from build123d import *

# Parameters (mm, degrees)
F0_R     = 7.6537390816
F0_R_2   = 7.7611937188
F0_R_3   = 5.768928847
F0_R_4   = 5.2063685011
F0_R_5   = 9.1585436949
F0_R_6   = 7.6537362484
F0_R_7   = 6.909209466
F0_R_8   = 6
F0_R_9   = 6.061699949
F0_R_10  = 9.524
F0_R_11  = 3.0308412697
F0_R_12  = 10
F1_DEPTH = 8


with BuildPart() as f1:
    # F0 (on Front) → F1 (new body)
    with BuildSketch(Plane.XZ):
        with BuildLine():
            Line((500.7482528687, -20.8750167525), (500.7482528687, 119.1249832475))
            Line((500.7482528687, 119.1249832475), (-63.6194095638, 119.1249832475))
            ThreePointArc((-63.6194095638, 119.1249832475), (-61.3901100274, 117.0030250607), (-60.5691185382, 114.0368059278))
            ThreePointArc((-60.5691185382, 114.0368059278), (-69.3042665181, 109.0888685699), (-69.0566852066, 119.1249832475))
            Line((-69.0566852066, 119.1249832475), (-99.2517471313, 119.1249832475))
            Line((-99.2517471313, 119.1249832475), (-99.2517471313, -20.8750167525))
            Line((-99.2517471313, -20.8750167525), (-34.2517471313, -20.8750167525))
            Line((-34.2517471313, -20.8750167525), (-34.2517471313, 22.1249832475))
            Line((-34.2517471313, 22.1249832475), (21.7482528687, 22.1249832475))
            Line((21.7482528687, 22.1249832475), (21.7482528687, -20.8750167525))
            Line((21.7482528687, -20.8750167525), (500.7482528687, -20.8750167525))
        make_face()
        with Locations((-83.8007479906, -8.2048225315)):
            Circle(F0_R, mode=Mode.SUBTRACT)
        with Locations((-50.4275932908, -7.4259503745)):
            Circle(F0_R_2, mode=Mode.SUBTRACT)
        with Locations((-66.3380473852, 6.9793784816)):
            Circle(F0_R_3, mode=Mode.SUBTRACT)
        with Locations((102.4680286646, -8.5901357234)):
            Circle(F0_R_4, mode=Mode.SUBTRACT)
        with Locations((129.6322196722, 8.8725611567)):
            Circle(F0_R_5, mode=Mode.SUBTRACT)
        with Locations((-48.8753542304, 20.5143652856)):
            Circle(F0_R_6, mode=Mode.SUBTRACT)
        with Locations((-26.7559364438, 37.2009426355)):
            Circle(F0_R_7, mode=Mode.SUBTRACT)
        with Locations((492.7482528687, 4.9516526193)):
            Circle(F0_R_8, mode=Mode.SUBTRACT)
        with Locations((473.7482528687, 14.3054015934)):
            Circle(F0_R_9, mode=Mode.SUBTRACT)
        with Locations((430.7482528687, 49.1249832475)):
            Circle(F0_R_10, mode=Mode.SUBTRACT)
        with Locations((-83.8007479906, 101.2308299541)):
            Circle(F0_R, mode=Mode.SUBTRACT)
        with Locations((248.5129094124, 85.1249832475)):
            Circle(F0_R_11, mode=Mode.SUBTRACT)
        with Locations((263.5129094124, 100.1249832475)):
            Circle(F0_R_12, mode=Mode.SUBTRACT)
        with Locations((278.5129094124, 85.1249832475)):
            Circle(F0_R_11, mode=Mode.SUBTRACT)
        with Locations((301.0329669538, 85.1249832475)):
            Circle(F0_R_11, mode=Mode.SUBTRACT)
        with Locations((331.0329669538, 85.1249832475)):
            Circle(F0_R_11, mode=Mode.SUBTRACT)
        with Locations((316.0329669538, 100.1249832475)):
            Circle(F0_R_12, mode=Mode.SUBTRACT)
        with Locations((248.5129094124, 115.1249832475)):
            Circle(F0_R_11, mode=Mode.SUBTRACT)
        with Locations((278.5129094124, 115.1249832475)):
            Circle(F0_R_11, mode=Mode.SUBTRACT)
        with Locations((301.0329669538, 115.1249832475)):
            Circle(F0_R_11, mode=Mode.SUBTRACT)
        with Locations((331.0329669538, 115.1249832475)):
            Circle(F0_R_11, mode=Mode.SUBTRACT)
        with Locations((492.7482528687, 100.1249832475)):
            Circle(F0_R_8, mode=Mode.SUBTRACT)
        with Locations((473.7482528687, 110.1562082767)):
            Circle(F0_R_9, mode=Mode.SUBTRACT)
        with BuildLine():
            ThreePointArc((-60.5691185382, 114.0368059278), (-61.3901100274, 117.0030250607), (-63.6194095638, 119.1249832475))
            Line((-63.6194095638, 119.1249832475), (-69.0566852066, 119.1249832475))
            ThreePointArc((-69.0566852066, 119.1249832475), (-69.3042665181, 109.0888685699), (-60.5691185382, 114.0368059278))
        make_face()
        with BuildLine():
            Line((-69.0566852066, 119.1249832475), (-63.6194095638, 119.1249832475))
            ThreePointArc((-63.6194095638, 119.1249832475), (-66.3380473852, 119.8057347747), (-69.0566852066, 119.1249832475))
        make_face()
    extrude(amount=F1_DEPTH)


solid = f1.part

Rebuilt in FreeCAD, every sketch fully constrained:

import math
import FreeCAD as App
import Part
import Sketcher

doc = App.newDocument("Part")
body = doc.addObject("PartDesign::Body", "Body")

# Sketch on XZ plane
sketch1 = doc.addObject("Sketcher::SketchObject", "Sketch")
body.addObject(sketch1)
sketch1.AttachmentSupport = (doc.XZ_Plane, [""])
sketch1.MapMode = "FlatFace"
sketch1.addGeometry([
    Part.LineSegment(App.Vector(500.7, -20.9, 0), App.Vector(500.7, 119.1, 0)),  # 0
    Part.LineSegment(App.Vector(500.7, 119.1, 0), App.Vector(-63.6, 119.1, 0)),  # 1
    Part.ArcOfCircle(Part.Circle(App.Vector(-66.3, 114, 0), App.Vector(0, 0, 1), 5.8), math.radians(62), math.radians(118)),  # 2
    Part.LineSegment(App.Vector(-69.1, 119.1, 0), App.Vector(-99.3, 119.1, 0)),  # 3
    Part.LineSegment(App.Vector(-99.3, 119.1, 0), App.Vector(-99.3, -20.9, 0)),  # 4
    Part.LineSegment(App.Vector(-99.3, -20.9, 0), App.Vector(-34.3, -20.9, 0)),  # 5
    Part.LineSegment(App.Vector(-34.3, -20.9, 0), App.Vector(-34.3, 22.1, 0)),  # 6
    Part.LineSegment(App.Vector(-34.3, 22.1, 0), App.Vector(21.7, 22.1, 0)),  # 7
    Part.LineSegment(App.Vector(21.7, 22.1, 0), App.Vector(21.7, -20.9, 0)),  # 8
    Part.LineSegment(App.Vector(21.7, -20.9, 0), App.Vector(500.7, -20.9, 0)),  # 9
    Part.Circle(App.Vector(-83.8, -8.2, 0), App.Vector(0, 0, 1), 7.7),  # 10
    Part.Circle(App.Vector(-50.4, -7.4, 0), App.Vector(0, 0, 1), 7.8),  # 11
    Part.Circle(App.Vector(-66.3, 7, 0), App.Vector(0, 0, 1), 5.8),  # 12
    Part.Circle(App.Vector(102.5, -8.6, 0), App.Vector(0, 0, 1), 5.2),  # 13
    Part.Circle(App.Vector(129.6, 8.9, 0), App.Vector(0, 0, 1), 9.2),  # 14
    Part.Circle(App.Vector(-48.9, 20.5, 0), App.Vector(0, 0, 1), 7.7),  # 15
    Part.Circle(App.Vector(-26.8, 37.2, 0), App.Vector(0, 0, 1), 6.9),  # 16
    Part.Circle(App.Vector(492.7, 5, 0), App.Vector(0, 0, 1), 6),  # 17
    Part.Circle(App.Vector(473.7, 14.3, 0), App.Vector(0, 0, 1), 6.1),  # 18
    Part.Circle(App.Vector(430.7, 49.1, 0), App.Vector(0, 0, 1), 9.5),  # 19
    Part.Circle(App.Vector(-83.8, 101.2, 0), App.Vector(0, 0, 1), 7.7),  # 20
    Part.Circle(App.Vector(248.5, 85.1, 0), App.Vector(0, 0, 1), 3),  # 21
    Part.Circle(App.Vector(263.5, 100.1, 0), App.Vector(0, 0, 1), 10),  # 22
    Part.Circle(App.Vector(278.5, 85.1, 0), App.Vector(0, 0, 1), 3),  # 23
    Part.Circle(App.Vector(301, 85.1, 0), App.Vector(0, 0, 1), 3),  # 24
    Part.Circle(App.Vector(331, 85.1, 0), App.Vector(0, 0, 1), 3),  # 25
    Part.Circle(App.Vector(316, 100.1, 0), App.Vector(0, 0, 1), 10),  # 26
    Part.Circle(App.Vector(248.5, 115.1, 0), App.Vector(0, 0, 1), 3),  # 27
    Part.Circle(App.Vector(278.5, 115.1, 0), App.Vector(0, 0, 1), 3),  # 28
    Part.Circle(App.Vector(301, 115.1, 0), App.Vector(0, 0, 1), 3),  # 29
    Part.Circle(App.Vector(331, 115.1, 0), App.Vector(0, 0, 1), 3),  # 30
    Part.Circle(App.Vector(492.7, 100.1, 0), App.Vector(0, 0, 1), 6),  # 31
    Part.Circle(App.Vector(473.7, 110.2, 0), App.Vector(0, 0, 1), 6.1),  # 32
], False)
sketch1.addConstraint([
    Sketcher.Constraint("Coincident", 0, 2, 1, 1),
    Sketcher.Constraint("Coincident", 1, 2, 2, 1),
    Sketcher.Constraint("Coincident", 2, 2, 3, 1),
    Sketcher.Constraint("Coincident", 3, 2, 4, 1),
    Sketcher.Constraint("Coincident", 4, 2, 5, 1),
    Sketcher.Constraint("Coincident", 5, 2, 6, 1),
    Sketcher.Constraint("Coincident", 6, 2, 7, 1),
    Sketcher.Constraint("Coincident", 7, 2, 8, 1),
    Sketcher.Constraint("Coincident", 8, 2, 9, 1),
    Sketcher.Constraint("Coincident", 9, 2, 0, 1),
    Sketcher.Constraint("Vertical", 0),
    Sketcher.Constraint("Horizontal", 1),
    Sketcher.Constraint("Horizontal", 3),
    Sketcher.Constraint("Vertical", 4),
    Sketcher.Constraint("Horizontal", 5),
    Sketcher.Constraint("Vertical", 6),
    Sketcher.Constraint("Horizontal", 7),
    Sketcher.Constraint("Vertical", 8),
    Sketcher.Constraint("Horizontal", 9),
    Sketcher.Constraint("Equal", 2, 12),
    Sketcher.Constraint("Equal", 10, 20),
    Sketcher.Constraint("Equal", 21, 23),
    Sketcher.Constraint("Equal", 23, 24),
    Sketcher.Constraint("Equal", 24, 25),
    Sketcher.Constraint("Equal", 22, 26),
    Sketcher.Constraint("Equal", 25, 27),
    Sketcher.Constraint("Equal", 27, 28),
    Sketcher.Constraint("Equal", 28, 29),
    Sketcher.Constraint("Equal", 29, 30),
    Sketcher.Constraint("Equal", 17, 31),
    Sketcher.Constraint("Equal", 18, 32),
    Sketcher.Constraint("Horizontal", 21, 3, 23, 3),
    Sketcher.Constraint("Horizontal", 23, 3, 24, 3),
    Sketcher.Constraint("Horizontal", 24, 3, 25, 3),
    Sketcher.Constraint("Horizontal", 22, 3, 26, 3),
    Sketcher.Constraint("Horizontal", 27, 3, 28, 3),
    Sketcher.Constraint("Horizontal", 28, 3, 29, 3),
    Sketcher.Constraint("Horizontal", 29, 3, 30, 3),
    Sketcher.Constraint("Horizontal", 26, 3, 31, 3),
    Sketcher.Constraint("Horizontal", 1, 2, 2, 2),
    Sketcher.Constraint("Horizontal", 5, 2, 8, 2),
    Sketcher.Constraint("Vertical", 2, 3, 12, 3),
    Sketcher.Constraint("Vertical", 10, 3, 20, 3),
    Sketcher.Constraint("Vertical", 21, 3, 27, 3),
    Sketcher.Constraint("Vertical", 23, 3, 28, 3),
    Sketcher.Constraint("Vertical", 24, 3, 29, 3),
    Sketcher.Constraint("Vertical", 25, 3, 30, 3),
    Sketcher.Constraint("Vertical", 17, 3, 31, 3),
    Sketcher.Constraint("Vertical", 18, 3, 32, 3),
    Sketcher.Constraint("Diameter", 17, 12.0),
    Sketcher.Constraint("Diameter", 22, 20.0),
    Sketcher.Constraint("DistanceX", 5, 1, 5, 2, 65.0),
    Sketcher.Constraint("DistanceX", 7, 1, 7, 2, 56.0),
    Sketcher.Constraint("DistanceX", 9, 1, 9, 2, 479.0),
    Sketcher.Constraint("DistanceY", 0, 1, 0, 2, 140.0),
    Sketcher.Constraint("DistanceY", 6, 1, 6, 2, 43.0),
    Sketcher.Constraint("Diameter", 19, 19.048),
    Sketcher.Constraint("DistanceX", 18, 3, 17, 3, 19.0),
    Sketcher.Constraint("DistanceX", 19, 3, 18, 3, 43.0),
    Sketcher.Constraint("DistanceY", 19, 3, 21, 3, 36.0),
    Sketcher.Constraint("DistanceX", 21, 3, 22, 3, 15.0),
    Sketcher.Constraint("DistanceY", 21, 3, 22, 3, 15.0),
    Sketcher.Constraint("DistanceX", 22, 3, 23, 3, 15.0),
    Sketcher.Constraint("DistanceX", 24, 3, 25, 3, 30.0),
    Sketcher.Constraint("DistanceX", 24, 3, 26, 3, 15.0),
    Sketcher.Constraint("DistanceY", 22, 3, 27, 3, 15.0),
    Sketcher.Constraint("DistanceX", 31, 3, 0, 2, 8.0),
    Sketcher.Constraint("DistanceY", 31, 3, 0, 2, 19.0),
    Sketcher.Constraint("Diameter", 18, 12.1234),
    Sketcher.Constraint("Diameter", 10, 15.307478),
    Sketcher.Constraint("Diameter", 16, 13.818419),
    Sketcher.Constraint("Radius", 2, 5.768929),
    Sketcher.Constraint("Diameter", 11, 15.522387),
    Sketcher.Constraint("Diameter", 13, 10.412737),
    Sketcher.Constraint("Diameter", 14, 18.317087),
    Sketcher.Constraint("Diameter", 15, 15.307472),
    Sketcher.Constraint("Diameter", 21, 6.061683),
    Sketcher.Constraint("DistanceX", 3, 2, 20, 3, 15.450999),
    Sketcher.Constraint("DistanceX", 3, 2, 3, 1, 30.195062),
    Sketcher.Constraint("DistanceY", -1, 1, 18, 3, 14.305402),
    Sketcher.Constraint("DistanceX", 10, 3, 2, 3, 17.462701),
    Sketcher.Constraint("DistanceY", 10, 3, 12, 3, 15.184201),
    Sketcher.Constraint("DistanceY", 13, 3, 15, 3, 29.104501),
    Sketcher.Constraint("DistanceY", 11, 3, -1, 1, 7.42595),
    Sketcher.Constraint("DistanceY", -1, 1, 12, 3, 6.979378),
    Sketcher.Constraint("DistanceX", -1, 1, 13, 3, 102.468029),
    Sketcher.Constraint("DistanceX", -1, 1, 14, 3, 129.63222),
    Sketcher.Constraint("DistanceY", -1, 1, 14, 3, 8.872561),
    Sketcher.Constraint("DistanceY", -1, 1, 20, 3, 101.23083),
    Sketcher.Constraint("DistanceX", -1, 1, 21, 3, 248.512909),
    Sketcher.Constraint("DistanceY", -1, 1, 32, 3, 110.156208),
    Sketcher.Constraint("DistanceX", 1, 2, -1, 1, 63.61941),
    Sketcher.Constraint("DistanceY", 10, 3, 2, 3, 122.241628),
    Sketcher.Constraint("DistanceX", 11, 3, 13, 3, 152.895622),
    Sketcher.Constraint("DistanceY", 13, 3, 2, 3, 122.626942),
    Sketcher.Constraint("DistanceX", 11, 3, 15, 3, 1.552239),
    Sketcher.Constraint("DistanceX", 12, 3, 16, 3, 39.582111),
    Sketcher.Constraint("DistanceY", 17, 3, 14, 3, 3.920909),
    Sketcher.Constraint("DistanceY", 17, 3, 16, 3, 32.24929),
    Sketcher.Constraint("DistanceX", -1, 1, 24, 3, 301.032967),
])
pad1 = doc.addObject("PartDesign::Pad", "Pad")
body.addObject(pad1)
pad1.Profile = sketch1
pad1.Length = 8

doc.recompute()
